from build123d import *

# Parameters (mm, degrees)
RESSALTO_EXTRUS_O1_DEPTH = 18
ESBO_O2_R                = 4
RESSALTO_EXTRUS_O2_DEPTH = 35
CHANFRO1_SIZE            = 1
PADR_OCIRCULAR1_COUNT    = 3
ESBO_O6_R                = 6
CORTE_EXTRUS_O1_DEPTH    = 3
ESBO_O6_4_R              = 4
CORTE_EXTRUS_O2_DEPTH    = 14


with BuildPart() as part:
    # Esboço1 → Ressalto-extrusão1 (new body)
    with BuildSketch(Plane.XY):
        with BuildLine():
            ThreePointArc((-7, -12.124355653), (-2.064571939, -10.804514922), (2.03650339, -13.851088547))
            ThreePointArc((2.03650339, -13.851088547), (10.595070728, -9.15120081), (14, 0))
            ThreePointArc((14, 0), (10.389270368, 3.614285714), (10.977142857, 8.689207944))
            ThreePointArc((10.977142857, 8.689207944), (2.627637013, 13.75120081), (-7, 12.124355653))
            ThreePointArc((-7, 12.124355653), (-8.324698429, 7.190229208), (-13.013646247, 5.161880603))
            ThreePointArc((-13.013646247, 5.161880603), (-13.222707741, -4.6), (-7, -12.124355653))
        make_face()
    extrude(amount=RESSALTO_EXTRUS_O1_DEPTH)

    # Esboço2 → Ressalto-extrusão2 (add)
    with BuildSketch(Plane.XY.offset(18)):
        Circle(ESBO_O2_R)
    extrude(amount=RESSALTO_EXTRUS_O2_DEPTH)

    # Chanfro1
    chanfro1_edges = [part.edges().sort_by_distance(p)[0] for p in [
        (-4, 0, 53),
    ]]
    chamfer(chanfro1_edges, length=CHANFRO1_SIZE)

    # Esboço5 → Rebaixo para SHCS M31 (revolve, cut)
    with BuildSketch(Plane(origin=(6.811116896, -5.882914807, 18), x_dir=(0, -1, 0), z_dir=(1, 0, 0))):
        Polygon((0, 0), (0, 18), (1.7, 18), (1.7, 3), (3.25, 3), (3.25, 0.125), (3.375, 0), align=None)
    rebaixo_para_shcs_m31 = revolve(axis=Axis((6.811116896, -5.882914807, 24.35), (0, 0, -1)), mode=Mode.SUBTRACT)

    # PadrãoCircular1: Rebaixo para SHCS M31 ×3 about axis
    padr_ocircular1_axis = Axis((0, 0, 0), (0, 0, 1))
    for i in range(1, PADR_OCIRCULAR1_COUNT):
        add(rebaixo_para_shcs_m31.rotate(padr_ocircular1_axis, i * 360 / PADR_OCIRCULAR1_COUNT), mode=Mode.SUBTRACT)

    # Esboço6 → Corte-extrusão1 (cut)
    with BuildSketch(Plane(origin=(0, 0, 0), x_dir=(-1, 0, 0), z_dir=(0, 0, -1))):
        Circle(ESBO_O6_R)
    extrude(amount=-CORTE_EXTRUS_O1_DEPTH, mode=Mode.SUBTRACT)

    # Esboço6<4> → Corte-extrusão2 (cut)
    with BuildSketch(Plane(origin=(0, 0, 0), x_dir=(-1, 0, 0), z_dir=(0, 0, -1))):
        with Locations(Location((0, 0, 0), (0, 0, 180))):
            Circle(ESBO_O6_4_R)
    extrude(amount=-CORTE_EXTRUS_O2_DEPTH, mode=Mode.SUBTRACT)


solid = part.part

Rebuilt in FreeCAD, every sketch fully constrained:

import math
import FreeCAD as App
import Part
import Sketcher
Q = App.Units.Quantity


def edges_at(feature, points):
    """Names of the edges that pass closest to the given points."""
    edges = feature.Shape.Edges
    near = lambda p: min(range(len(edges)), key=lambda i: edges[i].distToShape(Part.Vertex(*p))[0])
    return sorted({f"Edge{near(p) + 1}" for p in points})


def add_polygon(sketch, points):
    """Adds a closed chain of lines whose ends are joined by coincident constraints."""
    first, n = sketch.GeometryCount, len(points)
    for a, b in zip(points, points[1:] + points[:1]):
        sketch.addGeometry(Part.LineSegment(App.Vector(*a, 0), App.Vector(*b, 0)), False)
    for i in range(n):
        sketch.addConstraint(Sketcher.Constraint("Coincident", first + i, 2, first + (i + 1) % n, 1))

doc = App.newDocument("Part")
body = doc.addObject("PartDesign::Body", "Body")

# Sketch on XY plane
sketch1 = doc.addObject("Sketcher::SketchObject", "Sketch")
body.addObject(sketch1)
sketch1.AttachmentSupport = (doc.XY_Plane, [""])
sketch1.MapMode = "FlatFace"
sketch1.addGeometry(Part.ArcOfCircle(Part.Circle(App.Vector(-3, -17, 0), App.Vector(0, 0, 1), 6), math.radians(28), math.radians(131)), False)
sketch1.addGeometry(Part.ArcOfCircle(Part.Circle(App.Vector(0, 0, 0), App.Vector(0, 0, 1), 14), math.radians(-82), math.radians(0)), False)
sketch1.addGeometry(Part.ArcOfCircle(Part.Circle(App.Vector(16, 6, 0), App.Vector(0, 0, 1), 6), math.radians(148), math.radians(251)), False)
sketch1.addGeometry(Part.ArcOfCircle(Part.Circle(App.Vector(0, 0, 0), App.Vector(0, 0, 1), 14), math.radians(38), math.radians(120)), False)
sketch1.addGeometry(Part.ArcOfCircle(Part.Circle(App.Vector(-13, 11, 0), App.Vector(0, 0, 1), 6), math.radians(-92), math.radians(11)), False)
sketch1.addGeometry(Part.ArcOfCircle(Part.Circle(App.Vector(0, 0, 0), App.Vector(0, 0, 1), 14), math.radians(158), math.radians(240)), False)
sketch1.addConstraint(Sketcher.Constraint("Coincident", 0, 1, 1, 1))
sketch1.addConstraint(Sketcher.Constraint("Coincident", 1, 2, 2, 2))
sketch1.addConstraint(Sketcher.Constraint("Coincident", 2, 1, 3, 1))
sketch1.addConstraint(Sketcher.Constraint("Coincident", 3, 2, 4, 2))
sketch1.addConstraint(Sketcher.Constraint("Coincident", 4, 1, 5, 1))
sketch1.addConstraint(Sketcher.Constraint("Coincident", 5, 2, 0, 2))
sketch1.addConstraint(Sketcher.Constraint("Coincident", 1, 3, -1, 1))
sketch1.addConstraint(Sketcher.Constraint("Coincident", 3, 3, -1, 1))
sketch1.addConstraint(Sketcher.Constraint("Coincident", 5, 3, -1, 1))
sketch1.addConstraint(Sketcher.Constraint("Equal", 0, 2))
sketch1.addConstraint(Sketcher.Constraint("Equal", 1, 3))
sketch1.addConstraint(Sketcher.Constraint("Equal", 2, 4))
sketch1.addConstraint(Sketcher.Constraint("Equal", 3, 5))
sketch1.addConstraint(Sketcher.Constraint("PointOnObject", 1, 2, -1))
sketch1.addConstraint(Sketcher.Constraint("Vertical", 3, 2, 5, 2))
sketch1.addConstraint(Sketcher.Constraint("Radius", 1, Q("14 mm")))
sketch1.addConstraint(Sketcher.Constraint("DistanceX", 3, 2, -1, 1, Q("7 mm")))
sketch1.addConstraint(Sketcher.Constraint("Radius", 0, Q("5.871314 mm")))
sketch1.addConstraint(Sketcher.Constraint("DistanceY", 0, 3, 0, 1, Q("2.720399 mm")))
sketch1.addConstraint(Sketcher.Constraint("DistanceX", 0, 1, 2, 3, Q("13.8981 mm")))
sketch1.addConstraint(Sketcher.Constraint("DistanceY", 4, 3, 3, 2, Q("1.0963 mm")))
pad1 = doc.addObject("PartDesign::Pad", "Pad")
body.addObject(pad1)
pad1.Profile = sketch1
pad1.Length = 18

# Sketch on XY plane
sketch2 = doc.addObject("Sketcher::SketchObject", "Sketch001")
body.addObject(sketch2)
sketch2.AttachmentSupport = (doc.XY_Plane, [""])
sketch2.MapMode = "FlatFace"
sketch2.AttachmentOffset = App.Placement(App.Vector(0, 0, 18), App.Rotation())
sketch2.addGeometry(Part.Circle(App.Vector(0, 0, 0), App.Vector(0, 0, 1), 4), False)
sketch2.addConstraint(Sketcher.Constraint("Coincident", 0, 3, -1, 1))
sketch2.addConstraint(Sketcher.Constraint("Diameter", 0, Q("8 mm")))
pad2 = doc.addObject("PartDesign::Pad", "Pad001")
body.addObject(pad2)
pad2.Profile = sketch2
pad2.Length = 35
doc.recompute()

chamfer = doc.addObject("PartDesign::Chamfer", "Chamfer")
body.addObject(chamfer)
chamfer.Base = (pad2, edges_at(pad2, [(-4, 0, 53)]))
chamfer.Size = 1

# Sketch on YZ plane
sketch3 = doc.addObject("Sketcher::SketchObject", "Sketch002")
body.addObject(sketch3)
sketch3.AttachmentSupport = (doc.YZ_Plane, [""])
sketch3.MapMode = "FlatFace"
sketch3.AttachmentOffset = App.Placement(App.Vector(0, 0, 6.811117), App.Rotation())
add_polygon(sketch3, [(-5.88, 0), (-5.88, 18), (-9.26, 18), (-9.13, 17.88), (-9.13, 15), (-7.58, 15), (-7.58, 0)])  # lines 0-6
sketch3.addGeometry(Part.LineSegment(App.Vector(-5.88, 18, 0), App.Vector(-5.88, 0, 0)), True)  # axis
sketch3.addConstraint(Sketcher.Constraint("Vertical", 0))
sketch3.addConstraint(Sketcher.Constraint("Horizontal", 1))
sketch3.addConstraint(Sketcher.Constraint("Vertical", 3))
sketch3.addConstraint(Sketcher.Constraint("Horizontal", 4))
sketch3.addConstraint(Sketcher.Constraint("Vertical", 5))
sketch3.addConstraint(Sketcher.Constraint("Horizontal", 6))
sketch3.addConstraint(Sketcher.Constraint("Vertical", 7))
sketch3.addConstraint(Sketcher.Constraint("Coincident", 7, 1, 0, 2))
sketch3.addConstraint(Sketcher.Constraint("PointOnObject", 5, 2, -1))
sketch3.addConstraint(Sketcher.Constraint("PointOnObject", 7, 2, -1))
sketch3.addConstraint(Sketcher.Constraint("DistanceY", 0, 1, 0, 2, Q("18 mm")))
sketch3.addConstraint(Sketcher.Constraint("DistanceY", 5, 2, 5, 1, Q("15 mm")))
sketch3.addConstraint(Sketcher.Constraint("Angle", 2, Q("-45 deg")))
sketch3.addConstraint(Sketcher.Constraint("DistanceX", 6, 1, 6, 2, Q("1.7 mm")))
sketch3.addConstraint(Sketcher.Constraint("DistanceX", 4, 1, 4, 2, Q("1.55 mm")))
sketch3.addConstraint(Sketcher.Constraint("DistanceX", 1, 2, 1, 1, Q("3.375 mm")))
sketch3.addConstraint(Sketcher.Constraint("DistanceX", 0, 2, -1, 1, Q("5.882915 mm")))
groove = doc.addObject("PartDesign::Groove", "Groove")
body.addObject(groove)
groove.Profile = sketch3
groove.ReferenceAxis = (sketch3, ["Axis0"])
groove.Angle = 360
doc.recompute()

polarpattern = doc.addObject("PartDesign::PolarPattern", "PolarPattern")
body.addObject(polarpattern)
polarpattern.Originals = [groove]
polarpattern.Axis = (doc.Z_Axis, [""])
polarpattern.Angle = 360
polarpattern.Occurrences = 3
body.Tip = polarpattern

# Sketch on XY plane
sketch4 = doc.addObject("Sketcher::SketchObject", "Sketch003")
body.addObject(sketch4)
sketch4.AttachmentSupport = (doc.XY_Plane, [""])
sketch4.MapMode = "FlatFace"
sketch4.addGeometry(Part.Circle(App.Vector(0, 0, 0), App.Vector(0, 0, 1), 6), False)
sketch4.addConstraint(Sketcher.Constraint("Coincident", 0, 3, -1, 1))
sketch4.addConstraint(Sketcher.Constraint("Diameter", 0, Q("12 mm")))
pocket1 = doc.addObject("PartDesign::Pocket", "Pocket")
body.addObject(pocket1)
pocket1.Profile = sketch4
pocket1.Length = 3
pocket1.Reversed = True

# Sketch on XY plane
sketch5 = doc.addObject("Sketcher::SketchObject", "Sketch004")
body.addObject(sketch5)
sketch5.AttachmentSupport = (doc.XY_Plane, [""])
sketch5.MapMode = "FlatFace"
sketch5.addGeometry(Part.Circle(App.Vector(0, 0, 0), App.Vector(0, 0, 1), 4), False)
sketch5.addConstraint(Sketcher.Constraint("Coincident", 0, 3, -1, 1))
sketch5.addConstraint(Sketcher.Constraint("Diameter", 0, Q("8 mm")))
pocket2 = doc.addObject("PartDesign::Pocket", "Pocket001")
body.addObject(pocket2)
pocket2.Profile = sketch5
pocket2.Length = 14
pocket2.Reversed = True

doc.recompute()
